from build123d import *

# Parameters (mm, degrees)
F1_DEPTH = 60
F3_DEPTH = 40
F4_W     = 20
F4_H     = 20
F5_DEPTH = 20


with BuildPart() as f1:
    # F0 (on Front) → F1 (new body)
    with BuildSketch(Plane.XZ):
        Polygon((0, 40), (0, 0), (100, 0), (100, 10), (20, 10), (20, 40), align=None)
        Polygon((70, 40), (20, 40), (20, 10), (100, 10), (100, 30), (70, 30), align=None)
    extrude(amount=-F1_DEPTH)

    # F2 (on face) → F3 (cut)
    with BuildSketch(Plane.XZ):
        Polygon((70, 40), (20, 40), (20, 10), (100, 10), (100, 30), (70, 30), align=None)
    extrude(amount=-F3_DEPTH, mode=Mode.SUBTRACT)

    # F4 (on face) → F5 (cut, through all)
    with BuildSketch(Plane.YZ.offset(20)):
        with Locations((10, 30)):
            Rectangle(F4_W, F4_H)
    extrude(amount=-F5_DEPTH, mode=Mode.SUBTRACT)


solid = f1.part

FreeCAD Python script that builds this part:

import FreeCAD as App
import Part
import Sketcher
from FreeCAD import Vector
Q = App.Units.Quantity

doc = App.newDocument("Part")
params = doc.addObject("Spreadsheet::Sheet", "Params")
for row, (alias, value) in enumerate([
    ("sketch1_width", "100 mm"),
    ("sketch1_width2", "30 mm"),
    ("sketch1_height", "40 mm"),
    ("pad1_length", "60 mm"),
    ("sketch2_width", "50 mm"),
    ("sketch2_width2", "80 mm"),
    ("sketch2_height", "20 mm"),
    ("pocket1_length", "40 mm"),
    ("sketch3_width", "20 mm"),
], start=1):
    params.set(f"A{row}", alias)
    params.set(f"B{row}", "=" + value)
    params.setAlias(f"B{row}", alias)

body = doc.addObject("PartDesign::Body", "Body")

sketch1 = body.newObject("Sketcher::SketchObject", "Sketch")
sketch1.AttachmentSupport = (doc.getObject("XZ_Plane"), [""])
sketch1.MapMode = "FlatFace"
sketch1.addGeometry(Part.LineSegment(Vector(0, 40, 0), Vector(0, 0, 0)), False)
sketch1.addGeometry(Part.LineSegment(Vector(0, 0, 0), Vector(100, 0, 0)), False)
sketch1.addGeometry(Part.LineSegment(Vector(100, 0, 0), Vector(100, 30, 0)), False)
sketch1.addGeometry(Part.LineSegment(Vector(100, 30, 0), Vector(70, 30, 0)), False)
sketch1.addGeometry(Part.LineSegment(Vector(70, 30, 0), Vector(70, 40, 0)), False)
sketch1.addGeometry(Part.LineSegment(Vector(70, 40, 0), Vector(0, 40, 0)), False)
sketch1.addConstraint(Sketcher.Constraint("Coincident", 0, 2, 1, 1))
sketch1.addConstraint(Sketcher.Constraint("Coincident", 1, 2, 2, 1))
sketch1.addConstraint(Sketcher.Constraint("Coincident", 2, 2, 3, 1))
sketch1.addConstraint(Sketcher.Constraint("Coincident", 3, 2, 4, 1))
sketch1.addConstraint(Sketcher.Constraint("Coincident", 4, 2, 5, 1))
sketch1.addConstraint(Sketcher.Constraint("Coincident", 5, 2, 0, 1))
sketch1.addConstraint(Sketcher.Constraint("Vertical", 0))
sketch1.addConstraint(Sketcher.Constraint("Horizontal", 1))
sketch1.addConstraint(Sketcher.Constraint("Vertical", 2))
sketch1.addConstraint(Sketcher.Constraint("Horizontal", 3))
sketch1.addConstraint(Sketcher.Constraint("Vertical", 4))
sketch1.addConstraint(Sketcher.Constraint("Horizontal", 5))
sketch1.addConstraint(Sketcher.Constraint("Coincident", 0, 2, -1, 1))
sketch1.addConstraint(Sketcher.Constraint("Equal", 3, 2))
sketch1.addConstraint(Sketcher.Constraint("DistanceX", 1, 1, 1, 2, Q("100 mm")))
sketch1.addConstraint(Sketcher.Constraint("DistanceX", 3, 2, 3, 1, Q("30 mm")))
sketch1.addConstraint(Sketcher.Constraint("DistanceY", 0, 2, 0, 1, Q("40 mm")))
sketch1.setExpression("Constraints[14]", "Params.sketch1_width")
sketch1.setExpression("Constraints[15]", "Params.sketch1_width2")
sketch1.setExpression("Constraints[16]", "Params.sketch1_height")
pad1 = body.newObject("PartDesign::Pad", "Pad")
pad1.Profile = sketch1
pad1.setExpression("Length", "Params.pad1_length")
pad1.Reversed = True

sketch2 = body.newObject("Sketcher::SketchObject", "Sketch001")
sketch2.AttachmentSupport = (doc.getObject("XZ_Plane"), [""])
sketch2.MapMode = "FlatFace"
sketch2.addGeometry(Part.LineSegment(Vector(70, 40, 0), Vector(20, 40, 0)), False)
sketch2.addGeometry(Part.LineSegment(Vector(20, 40, 0), Vector(20, 10, 0)), False)
sketch2.addGeometry(Part.LineSegment(Vector(20, 10, 0), Vector(100, 10, 0)), False)
sketch2.addGeometry(Part.LineSegment(Vector(100, 10, 0), Vector(100, 30, 0)), False)
sketch2.addGeometry(Part.LineSegment(Vector(100, 30, 0), Vector(70, 30, 0)), False)
sketch2.addGeometry(Part.LineSegment(Vector(70, 30, 0), Vector(70, 40, 0)), False)
sketch2.addConstraint(Sketcher.Constraint("Coincident", 0, 2, 1, 1))
sketch2.addConstraint(Sketcher.Constraint("Coincident", 1, 2, 2, 1))
sketch2.addConstraint(Sketcher.Constraint("Coincident", 2, 2, 3, 1))
sketch2.addConstraint(Sketcher.Constraint("Coincident", 3, 2, 4, 1))
sketch2.addConstraint(Sketcher.Constraint("Coincident", 4, 2, 5, 1))
sketch2.addConstraint(Sketcher.Constraint("Coincident", 5, 2, 0, 1))
sketch2.addConstraint(Sketcher.Constraint("Horizontal", 0))
sketch2.addConstraint(Sketcher.Constraint("Vertical", 1))
sketch2.addConstraint(Sketcher.Constraint("Horizontal", 2))
sketch2.addConstraint(Sketcher.Constraint("Vertical", 3))
sketch2.addConstraint(Sketcher.Constraint("Horizontal", 4))
sketch2.addConstraint(Sketcher.Constraint("Vertical", 5))
sketch2.addConstraint(Sketcher.Constraint("Equal", 4, 1))
sketch2.addConstraint(Sketcher.Constraint("DistanceX", 0, 2, 0, 1, Q("50 mm")))
sketch2.addConstraint(Sketcher.Constraint("DistanceX", 2, 1, 2, 2, Q("80 mm")))
sketch2.addConstraint(Sketcher.Constraint("DistanceY", 3, 1, 3, 2, Q("20 mm")))
sketch2.addConstraint(Sketcher.Constraint("DistanceX", -1, 1, 0, 2, Q("20 mm")))
sketch2.addConstraint(Sketcher.Constraint("DistanceY", -1, 1, 0, 2, Q("40 mm")))
sketch2.setExpression("Constraints[13]", "Params.sketch2_width")
sketch2.setExpression("Constraints[14]", "Params.sketch2_width2")
sketch2.setExpression("Constraints[15]", "Params.sketch2_height")
pocket1 = body.newObject("PartDesign::Pocket", "Pocket")
pocket1.Profile = sketch2
pocket1.setExpression("Length", "Params.pocket1_length")

sketch3 = body.newObject("Sketcher::SketchObject", "Sketch002")
sketch3.AttachmentSupport = (doc.getObject("YZ_Plane"), [""])
sketch3.MapMode = "FlatFace"
sketch3.AttachmentOffset = App.Placement(Vector(0, 0, 20), App.Rotation())
sketch3.addGeometry(Part.LineSegment(Vector(0, 40, 0), Vector(0, 20, 0)), False)
sketch3.addGeometry(Part.LineSegment(Vector(0, 20, 0), Vector(20, 20, 0)), False)
sketch3.addGeometry(Part.LineSegment(Vector(20, 20, 0), Vector(20, 40, 0)), False)
sketch3.addGeometry(Part.LineSegment(Vector(20, 40, 0), Vector(0, 40, 0)), False)
sketch3.addConstraint(Sketcher.Constraint("Coincident", 0, 2, 1, 1))
sketch3.addConstraint(Sketcher.Constraint("Coincident", 1, 2, 2, 1))
sketch3.addConstraint(Sketcher.Constraint("Coincident", 2, 2, 3, 1))
sketch3.addConstraint(Sketcher.Constraint("Coincident", 3, 2, 0, 1))
sketch3.addConstraint(Sketcher.Constraint("Vertical", 0))
sketch3.addConstraint(Sketcher.Constraint("Horizontal", 1))
sketch3.addConstraint(Sketcher.Constraint("Vertical", 2))
sketch3.addConstraint(Sketcher.Constraint("Horizontal", 3))
sketch3.addConstraint(Sketcher.Constraint("PointOnObject", 0, 2, -2))
sketch3.addConstraint(Sketcher.Constraint("Equal", 3, 0))
sketch3.addConstraint(Sketcher.Constraint("DistanceX", 1, 1, 1, 2, Q("20 mm")))
sketch3.addConstraint(Sketcher.Constraint("DistanceY", -1, 1, 0, 2, Q("20 mm")))
sketch3.setExpression("Constraints[10]", "Params.sketch3_width")
pocket2 = body.newObject("PartDesign::Pocket", "Pocket001")
pocket2.Profile = sketch3
pocket2.Type = "ThroughAll"

doc.recompute()
